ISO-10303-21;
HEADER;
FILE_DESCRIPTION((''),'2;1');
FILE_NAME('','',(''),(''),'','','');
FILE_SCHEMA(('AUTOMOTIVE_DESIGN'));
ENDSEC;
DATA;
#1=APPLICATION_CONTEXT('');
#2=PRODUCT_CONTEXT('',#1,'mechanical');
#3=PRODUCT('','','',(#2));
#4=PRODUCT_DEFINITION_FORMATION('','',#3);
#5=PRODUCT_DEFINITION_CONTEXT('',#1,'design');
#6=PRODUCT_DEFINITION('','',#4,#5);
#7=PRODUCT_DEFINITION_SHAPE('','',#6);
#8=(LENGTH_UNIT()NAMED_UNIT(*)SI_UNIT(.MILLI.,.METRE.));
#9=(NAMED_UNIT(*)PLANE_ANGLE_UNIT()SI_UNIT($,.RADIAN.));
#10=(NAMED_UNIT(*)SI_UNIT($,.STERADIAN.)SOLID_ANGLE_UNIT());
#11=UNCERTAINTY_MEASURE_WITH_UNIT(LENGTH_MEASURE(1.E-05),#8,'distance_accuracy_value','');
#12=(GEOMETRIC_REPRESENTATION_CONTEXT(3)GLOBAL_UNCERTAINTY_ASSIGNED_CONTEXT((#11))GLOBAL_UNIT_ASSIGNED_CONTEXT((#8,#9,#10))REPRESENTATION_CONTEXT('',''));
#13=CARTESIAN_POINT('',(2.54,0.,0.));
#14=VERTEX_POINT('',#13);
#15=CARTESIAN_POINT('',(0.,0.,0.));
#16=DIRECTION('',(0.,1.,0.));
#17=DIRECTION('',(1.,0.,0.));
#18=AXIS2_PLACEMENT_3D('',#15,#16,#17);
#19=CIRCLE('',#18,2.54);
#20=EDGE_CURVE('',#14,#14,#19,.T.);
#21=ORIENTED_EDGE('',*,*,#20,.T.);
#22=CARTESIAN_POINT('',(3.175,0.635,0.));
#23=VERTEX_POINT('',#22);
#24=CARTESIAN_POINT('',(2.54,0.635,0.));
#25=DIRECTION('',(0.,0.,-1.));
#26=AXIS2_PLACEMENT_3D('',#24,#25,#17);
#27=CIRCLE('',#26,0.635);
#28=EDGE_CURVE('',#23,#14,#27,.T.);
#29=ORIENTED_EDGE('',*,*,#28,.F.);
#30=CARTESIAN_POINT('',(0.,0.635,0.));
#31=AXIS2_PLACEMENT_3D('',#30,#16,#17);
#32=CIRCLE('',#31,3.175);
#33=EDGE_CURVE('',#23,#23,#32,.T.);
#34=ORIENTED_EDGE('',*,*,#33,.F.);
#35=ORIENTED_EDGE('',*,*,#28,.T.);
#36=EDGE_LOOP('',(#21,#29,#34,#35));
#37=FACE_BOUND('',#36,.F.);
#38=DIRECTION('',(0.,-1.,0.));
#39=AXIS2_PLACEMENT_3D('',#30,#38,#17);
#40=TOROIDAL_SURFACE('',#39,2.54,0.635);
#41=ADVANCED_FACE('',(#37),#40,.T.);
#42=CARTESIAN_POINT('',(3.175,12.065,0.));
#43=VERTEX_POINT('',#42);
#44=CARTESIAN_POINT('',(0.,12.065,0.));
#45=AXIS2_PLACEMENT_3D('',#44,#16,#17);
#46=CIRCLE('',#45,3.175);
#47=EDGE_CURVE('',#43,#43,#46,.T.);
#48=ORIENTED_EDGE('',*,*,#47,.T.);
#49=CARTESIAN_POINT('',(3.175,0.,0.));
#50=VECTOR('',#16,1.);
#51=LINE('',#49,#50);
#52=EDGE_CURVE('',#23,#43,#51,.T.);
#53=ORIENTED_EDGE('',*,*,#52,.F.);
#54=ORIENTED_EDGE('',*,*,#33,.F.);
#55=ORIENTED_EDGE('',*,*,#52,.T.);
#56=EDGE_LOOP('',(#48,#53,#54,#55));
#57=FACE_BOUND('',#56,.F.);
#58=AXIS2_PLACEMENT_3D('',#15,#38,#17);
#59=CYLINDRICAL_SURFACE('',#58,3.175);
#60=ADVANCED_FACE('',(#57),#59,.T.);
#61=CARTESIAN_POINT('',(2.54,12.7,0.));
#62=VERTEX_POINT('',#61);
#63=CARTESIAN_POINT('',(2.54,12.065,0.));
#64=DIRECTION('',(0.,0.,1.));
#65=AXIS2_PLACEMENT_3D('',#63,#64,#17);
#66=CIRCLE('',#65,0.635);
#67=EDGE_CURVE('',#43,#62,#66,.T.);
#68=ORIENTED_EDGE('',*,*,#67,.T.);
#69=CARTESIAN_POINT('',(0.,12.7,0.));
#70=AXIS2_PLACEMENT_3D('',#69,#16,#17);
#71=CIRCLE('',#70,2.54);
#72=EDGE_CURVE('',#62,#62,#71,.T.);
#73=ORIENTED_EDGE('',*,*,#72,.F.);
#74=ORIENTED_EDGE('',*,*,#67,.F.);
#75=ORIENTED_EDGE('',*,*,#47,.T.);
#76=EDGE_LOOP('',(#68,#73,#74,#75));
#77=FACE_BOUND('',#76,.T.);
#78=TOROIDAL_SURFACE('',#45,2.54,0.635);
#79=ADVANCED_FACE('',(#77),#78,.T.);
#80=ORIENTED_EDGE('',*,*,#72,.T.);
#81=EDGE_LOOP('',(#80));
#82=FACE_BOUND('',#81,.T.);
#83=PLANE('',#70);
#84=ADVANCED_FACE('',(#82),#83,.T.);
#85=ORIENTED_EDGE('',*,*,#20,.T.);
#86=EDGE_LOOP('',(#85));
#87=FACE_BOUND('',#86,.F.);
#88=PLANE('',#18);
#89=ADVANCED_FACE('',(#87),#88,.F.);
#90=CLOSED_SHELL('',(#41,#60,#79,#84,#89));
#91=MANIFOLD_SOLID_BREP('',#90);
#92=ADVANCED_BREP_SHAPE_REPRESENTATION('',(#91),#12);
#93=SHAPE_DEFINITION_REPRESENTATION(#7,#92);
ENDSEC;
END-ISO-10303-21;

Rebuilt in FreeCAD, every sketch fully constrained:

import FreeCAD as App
import Part
import Sketcher
Q = App.Units.Quantity


def edges_at(feature, points):
    """Names of the edges that pass closest to the given points."""
    edges = feature.Shape.Edges
    near = lambda p: min(range(len(edges)), key=lambda i: edges[i].distToShape(Part.Vertex(*p))[0])
    return sorted({f"Edge{near(p) + 1}" for p in points})

doc = App.newDocument("Part")
params = doc.addObject("Spreadsheet::Sheet", "Params")
for row, (alias, value) in enumerate([
    ("sketch1_diameter", "0.25 in"),
    ("pad1_length", "0.5 in"),
    ("fillet_radius", "0.025 in"),
], start=1):
    params.set(f"A{row}", alias)
    params.set(f"B{row}", "=" + value)
    params.setAlias(f"B{row}", alias)

body = doc.addObject("PartDesign::Body", "Body")

sketch1 = body.newObject("Sketcher::SketchObject", "Sketch")
sketch1.AttachmentSupport = (doc.getObject("XZ_Plane"), [""])
sketch1.MapMode = "FlatFace"
sketch1.addGeometry(Part.Circle(App.Vector(0, 0, 0), App.Vector(0, 0, 1), 3.175), False)
sketch1.addConstraint(Sketcher.Constraint("Coincident", 0, 3, -1, 1))
sketch1.addConstraint(Sketcher.Constraint("Diameter", 0, Q("0.25 in")))
sketch1.setExpression("Constraints[1]", "Params.sketch1_diameter")
pad1 = body.newObject("PartDesign::Pad", "Pad")
pad1.Profile = sketch1
pad1.setExpression("Length", "Params.pad1_length")
pad1.Reversed = True
doc.recompute()

fillet = body.newObject("PartDesign::Fillet", "Fillet")
fillet.Base = (pad1, edges_at(pad1, [(-3.175, 0, 0), (-3.175, 12.7, 0)]))
fillet.setExpression("Radius", "Params.fillet_radius")

doc.recompute()
